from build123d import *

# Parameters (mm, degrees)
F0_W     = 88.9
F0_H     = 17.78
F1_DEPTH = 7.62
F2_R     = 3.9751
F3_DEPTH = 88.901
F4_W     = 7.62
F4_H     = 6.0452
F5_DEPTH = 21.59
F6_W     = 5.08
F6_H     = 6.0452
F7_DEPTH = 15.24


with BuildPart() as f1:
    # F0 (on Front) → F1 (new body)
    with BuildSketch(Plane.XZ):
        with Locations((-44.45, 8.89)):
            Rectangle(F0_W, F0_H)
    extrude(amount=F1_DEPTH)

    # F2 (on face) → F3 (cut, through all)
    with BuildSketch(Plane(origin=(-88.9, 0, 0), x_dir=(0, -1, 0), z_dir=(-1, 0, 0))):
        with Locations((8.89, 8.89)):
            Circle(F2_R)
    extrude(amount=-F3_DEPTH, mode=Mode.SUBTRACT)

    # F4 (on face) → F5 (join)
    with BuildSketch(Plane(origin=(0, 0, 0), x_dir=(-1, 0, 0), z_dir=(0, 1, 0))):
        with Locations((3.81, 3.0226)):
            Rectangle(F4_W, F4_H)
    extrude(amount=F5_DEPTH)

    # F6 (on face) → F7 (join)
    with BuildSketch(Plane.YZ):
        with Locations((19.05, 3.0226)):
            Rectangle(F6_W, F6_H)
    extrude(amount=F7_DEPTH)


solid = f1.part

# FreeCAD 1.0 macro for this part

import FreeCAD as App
import Part
import Sketcher
from FreeCAD import Vector
Q = App.Units.Quantity


def add_polygon(sketch, points):
    """Adds a closed chain of lines whose ends are joined by coincident constraints."""
    first, n = sketch.GeometryCount, len(points)
    for a, b in zip(points, points[1:] + points[:1]):
        sketch.addGeometry(Part.LineSegment(App.Vector(*a, 0), App.Vector(*b, 0)), False)
    for i in range(n):
        sketch.addConstraint(Sketcher.Constraint("Coincident", first + i, 2, first + (i + 1) % n, 1))

doc = App.newDocument("Part")
body = doc.addObject("PartDesign::Body", "Body")

# Sketch on XZ plane
sketch1 = body.newObject("Sketcher::SketchObject", "Sketch")
sketch1.AttachmentSupport = (doc.getObject("XZ_Plane"), [""])
sketch1.MapMode = "FlatFace"
add_polygon(sketch1, [(-89, 18), (-89, 0), (0, 0), (0, 18)])  # lines 0-3
sketch1.addConstraint([
    Sketcher.Constraint("Vertical", 0),
    Sketcher.Constraint("Horizontal", 1),
    Sketcher.Constraint("Vertical", 2),
    Sketcher.Constraint("Horizontal", 3),
    Sketcher.Constraint("Coincident", 1, 2, -1, 1),
    Sketcher.Constraint("DistanceX", 1, 1, 1, 2, Q("3.5 in")),
    Sketcher.Constraint("DistanceY", 0, 2, 0, 1, Q("0.7 in")),
])
pad1 = body.newObject("PartDesign::Pad", "Pad")
pad1.Profile = sketch1
pad1.Length = Q("0.3 in")

# Sketch on YZ plane
sketch2 = body.newObject("Sketcher::SketchObject", "Sketch001")
sketch2.AttachmentSupport = (doc.getObject("YZ_Plane"), [""])
sketch2.MapMode = "FlatFace"
sketch2.AttachmentOffset = App.Placement(Vector(0, 0, -3.5 * 25.4), App.Rotation())
sketch2.addGeometry(Part.Circle(Vector(-8.9, 8.9, 0), Vector(0, 0, 1), 4), False)
sketch2.addConstraint([
    Sketcher.Constraint("Diameter", 0, Q("0.313 in")),
    Sketcher.Constraint("DistanceX", 0, 3, -1, 1, Q("0.35 in")),
    Sketcher.Constraint("DistanceY", -1, 1, 0, 3, Q("0.35 in")),
])
pocket1 = body.newObject("PartDesign::Pocket", "Pocket")
pocket1.Profile = sketch2
pocket1.Type = "ThroughAll"
pocket1.Reversed = True

# Sketch on XZ plane
sketch3 = body.newObject("Sketcher::SketchObject", "Sketch002")
sketch3.AttachmentSupport = (doc.getObject("XZ_Plane"), [""])
sketch3.MapMode = "FlatFace"
add_polygon(sketch3, [(0, 6), (0, 0), (-8, 0), (-8, 6)])  # lines 0-3
sketch3.addConstraint([
    Sketcher.Constraint("Vertical", 0),
    Sketcher.Constraint("Horizontal", 1),
    Sketcher.Constraint("Vertical", 2),
    Sketcher.Constraint("Horizontal", 3),
    Sketcher.Constraint("Coincident", 0, 2, -1, 1),
    Sketcher.Constraint("DistanceX", 1, 2, 1, 1, Q("0.3 in")),
    Sketcher.Constraint("DistanceY", 0, 2, 0, 1, Q("0.238 in")),
])
pad2 = body.newObject("PartDesign::Pad", "Pad001")
pad2.Profile = sketch3
pad2.Length = Q("0.85 in")
pad2.Reversed = True

# Sketch on YZ plane
sketch4 = body.newObject("Sketcher::SketchObject", "Sketch003")
sketch4.AttachmentSupport = (doc.getObject("YZ_Plane"), [""])
sketch4.MapMode = "FlatFace"
add_polygon(sketch4, [(17, 6), (17, 0), (22, 0), (22, 6)])  # lines 0-3
sketch4.addConstraint([
    Sketcher.Constraint("Vertical", 0),
    Sketcher.Constraint("Horizontal", 1),
    Sketcher.Constraint("Vertical", 2),
    Sketcher.Constraint("Horizontal", 3),
    Sketcher.Constraint("PointOnObject", 0, 2, -1),
    Sketcher.Constraint("DistanceX", 1, 1, 1, 2, Q("0.2 in")),
    Sketcher.Constraint("DistanceY", 0, 2, 0, 1, Q("0.238 in")),
    Sketcher.Constraint("DistanceX", -1, 1, 0, 2, Q("0.65 in")),
])
pad3 = body.newObject("PartDesign::Pad", "Pad002")
pad3.Profile = sketch4
pad3.Length = Q("0.6 in")

doc.recompute()
